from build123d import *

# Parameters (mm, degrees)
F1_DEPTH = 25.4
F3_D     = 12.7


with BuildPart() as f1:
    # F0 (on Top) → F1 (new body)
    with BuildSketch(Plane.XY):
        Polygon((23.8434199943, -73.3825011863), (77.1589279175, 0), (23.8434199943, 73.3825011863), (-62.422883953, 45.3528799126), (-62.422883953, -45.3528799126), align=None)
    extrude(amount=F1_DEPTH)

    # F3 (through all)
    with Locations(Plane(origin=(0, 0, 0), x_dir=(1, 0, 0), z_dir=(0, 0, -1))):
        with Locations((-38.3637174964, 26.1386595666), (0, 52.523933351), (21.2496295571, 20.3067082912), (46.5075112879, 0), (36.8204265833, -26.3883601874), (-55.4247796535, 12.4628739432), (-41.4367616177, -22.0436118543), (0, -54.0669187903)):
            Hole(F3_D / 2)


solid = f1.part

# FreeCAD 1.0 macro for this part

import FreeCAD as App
import Part
import Sketcher

V = App.Vector
Q = App.Units.Quantity


def add_polygon(sketch, points):
    """Adds a closed chain of lines whose ends are joined by coincident constraints."""
    first, n = sketch.GeometryCount, len(points)
    for a, b in zip(points, points[1:] + points[:1]):
        sketch.addGeometry(Part.LineSegment(App.Vector(*a, 0), App.Vector(*b, 0)), False)
    for i in range(n):
        sketch.addConstraint(Sketcher.Constraint("Coincident", first + i, 2, first + (i + 1) % n, 1))

doc = App.newDocument("Part")
body = doc.addObject("PartDesign::Body", "Body")

sketch1 = doc.addObject("Sketcher::SketchObject", "Sketch")
body.addObject(sketch1)
sketch1.AttachmentSupport = (doc.XY_Plane, [""])
sketch1.MapMode = "FlatFace"
add_polygon(sketch1, [(24, -73), (77, 0), (24, 73), (-62, 45), (-62, -45)])
sketch1.addConstraint(Sketcher.Constraint("Vertical", 3))
sketch1.addConstraint(Sketcher.Constraint("Symmetric", 1, 2, 4, 2, -1))
sketch1.addConstraint(Sketcher.Constraint("PointOnObject", 0, 2, -1))
sketch1.addConstraint(Sketcher.Constraint("Equal", 1, 2))
sketch1.addConstraint(Sketcher.Constraint("Equal", 2, 4))
sketch1.addConstraint(Sketcher.Constraint("Angle", 0, Q("54 deg")))
sketch1.addConstraint(Sketcher.Constraint("Angle", 2, Q("-162 deg")))
sketch1.addConstraint(Sketcher.Constraint("DistanceY", 3, 2, 3, 1, 90.70576))
sketch1.addConstraint(Sketcher.Constraint("DistanceX", -1, 1, 1, 2, 23.84342))
pad1 = doc.addObject("PartDesign::Pad", "Pad")
body.addObject(pad1)
pad1.Profile = sketch1
pad1.Length = Q("1 in")

sketch2 = doc.addObject("Sketcher::SketchObject", "Sketch001")
body.addObject(sketch2)
sketch2.AttachmentSupport = (doc.XY_Plane, [""])
sketch2.MapMode = "FlatFace"
sketch2.addGeometry(Part.Circle(V(-38, -26, 0), V(0, 0, 1), 6), False)
sketch2.addGeometry(Part.Circle(V(0, -53, 0), V(0, 0, 1), 6), False)
sketch2.addGeometry(Part.Circle(V(21, -20, 0), V(0, 0, 1), 6), False)
sketch2.addGeometry(Part.Circle(V(47, 0, 0), V(0, 0, 1), 6), False)
sketch2.addGeometry(Part.Circle(V(37, 26, 0), V(0, 0, 1), 6), False)
sketch2.addGeometry(Part.Circle(V(-55, -12, 0), V(0, 0, 1), 6), False)
sketch2.addGeometry(Part.Circle(V(-41, 22, 0), V(0, 0, 1), 6), False)
sketch2.addGeometry(Part.Circle(V(0, 54, 0), V(0, 0, 1), 6), False)
sketch2.addConstraint(Sketcher.Constraint("Equal", 0, 1))
sketch2.addConstraint(Sketcher.Constraint("Equal", 1, 2))
sketch2.addConstraint(Sketcher.Constraint("Equal", 2, 3))
sketch2.addConstraint(Sketcher.Constraint("Equal", 3, 4))
sketch2.addConstraint(Sketcher.Constraint("Equal", 4, 5))
sketch2.addConstraint(Sketcher.Constraint("Equal", 5, 6))
sketch2.addConstraint(Sketcher.Constraint("Equal", 6, 7))
sketch2.addConstraint(Sketcher.Constraint("PointOnObject", 1, 3, -2))
sketch2.addConstraint(Sketcher.Constraint("PointOnObject", 3, 3, -1))
sketch2.addConstraint(Sketcher.Constraint("PointOnObject", 7, 3, -2))
sketch2.addConstraint(Sketcher.Constraint("Diameter", 0, Q("0.5 in")))
sketch2.addConstraint(Sketcher.Constraint("DistanceY", 0, 3, -1, 1, 26.13866))
sketch2.addConstraint(Sketcher.Constraint("DistanceX", -1, 1, 2, 3, 21.24963))
sketch2.addConstraint(Sketcher.Constraint("DistanceY", 2, 3, -1, 1, 20.306708))
sketch2.addConstraint(Sketcher.Constraint("DistanceX", -1, 1, 3, 3, 46.507511))
sketch2.addConstraint(Sketcher.Constraint("DistanceY", -1, 1, 4, 3, 26.38836))
sketch2.addConstraint(Sketcher.Constraint("DistanceX", 5, 3, -1, 1, 55.42478))
sketch2.addConstraint(Sketcher.Constraint("DistanceX", 6, 3, -1, 1, 41.436762))
sketch2.addConstraint(Sketcher.Constraint("DistanceY", -1, 1, 6, 3, 22.043612))
sketch2.addConstraint(Sketcher.Constraint("DistanceY", -1, 1, 7, 3, 54.066919))
sketch2.addConstraint(Sketcher.Constraint("DistanceX", 0, 3, 3, 3, 84.871229))
sketch2.addConstraint(Sketcher.Constraint("DistanceY", 1, 3, 5, 3, 40.061059))
sketch2.addConstraint(Sketcher.Constraint("DistanceX", 6, 3, 4, 3, 78.257188))
sketch2.addConstraint(Sketcher.Constraint("DistanceY", 1, 3, -1, 1, 52.523933))
doc.recompute()
hole = doc.addObject("PartDesign::Hole", "Hole")
body.addObject(hole)
hole.Profile = sketch2
hole.ThreadType = "None"
hole.Diameter = Q("0.5 in")
hole.DepthType = "ThroughAll"
hole.Reversed = True

doc.recompute()
